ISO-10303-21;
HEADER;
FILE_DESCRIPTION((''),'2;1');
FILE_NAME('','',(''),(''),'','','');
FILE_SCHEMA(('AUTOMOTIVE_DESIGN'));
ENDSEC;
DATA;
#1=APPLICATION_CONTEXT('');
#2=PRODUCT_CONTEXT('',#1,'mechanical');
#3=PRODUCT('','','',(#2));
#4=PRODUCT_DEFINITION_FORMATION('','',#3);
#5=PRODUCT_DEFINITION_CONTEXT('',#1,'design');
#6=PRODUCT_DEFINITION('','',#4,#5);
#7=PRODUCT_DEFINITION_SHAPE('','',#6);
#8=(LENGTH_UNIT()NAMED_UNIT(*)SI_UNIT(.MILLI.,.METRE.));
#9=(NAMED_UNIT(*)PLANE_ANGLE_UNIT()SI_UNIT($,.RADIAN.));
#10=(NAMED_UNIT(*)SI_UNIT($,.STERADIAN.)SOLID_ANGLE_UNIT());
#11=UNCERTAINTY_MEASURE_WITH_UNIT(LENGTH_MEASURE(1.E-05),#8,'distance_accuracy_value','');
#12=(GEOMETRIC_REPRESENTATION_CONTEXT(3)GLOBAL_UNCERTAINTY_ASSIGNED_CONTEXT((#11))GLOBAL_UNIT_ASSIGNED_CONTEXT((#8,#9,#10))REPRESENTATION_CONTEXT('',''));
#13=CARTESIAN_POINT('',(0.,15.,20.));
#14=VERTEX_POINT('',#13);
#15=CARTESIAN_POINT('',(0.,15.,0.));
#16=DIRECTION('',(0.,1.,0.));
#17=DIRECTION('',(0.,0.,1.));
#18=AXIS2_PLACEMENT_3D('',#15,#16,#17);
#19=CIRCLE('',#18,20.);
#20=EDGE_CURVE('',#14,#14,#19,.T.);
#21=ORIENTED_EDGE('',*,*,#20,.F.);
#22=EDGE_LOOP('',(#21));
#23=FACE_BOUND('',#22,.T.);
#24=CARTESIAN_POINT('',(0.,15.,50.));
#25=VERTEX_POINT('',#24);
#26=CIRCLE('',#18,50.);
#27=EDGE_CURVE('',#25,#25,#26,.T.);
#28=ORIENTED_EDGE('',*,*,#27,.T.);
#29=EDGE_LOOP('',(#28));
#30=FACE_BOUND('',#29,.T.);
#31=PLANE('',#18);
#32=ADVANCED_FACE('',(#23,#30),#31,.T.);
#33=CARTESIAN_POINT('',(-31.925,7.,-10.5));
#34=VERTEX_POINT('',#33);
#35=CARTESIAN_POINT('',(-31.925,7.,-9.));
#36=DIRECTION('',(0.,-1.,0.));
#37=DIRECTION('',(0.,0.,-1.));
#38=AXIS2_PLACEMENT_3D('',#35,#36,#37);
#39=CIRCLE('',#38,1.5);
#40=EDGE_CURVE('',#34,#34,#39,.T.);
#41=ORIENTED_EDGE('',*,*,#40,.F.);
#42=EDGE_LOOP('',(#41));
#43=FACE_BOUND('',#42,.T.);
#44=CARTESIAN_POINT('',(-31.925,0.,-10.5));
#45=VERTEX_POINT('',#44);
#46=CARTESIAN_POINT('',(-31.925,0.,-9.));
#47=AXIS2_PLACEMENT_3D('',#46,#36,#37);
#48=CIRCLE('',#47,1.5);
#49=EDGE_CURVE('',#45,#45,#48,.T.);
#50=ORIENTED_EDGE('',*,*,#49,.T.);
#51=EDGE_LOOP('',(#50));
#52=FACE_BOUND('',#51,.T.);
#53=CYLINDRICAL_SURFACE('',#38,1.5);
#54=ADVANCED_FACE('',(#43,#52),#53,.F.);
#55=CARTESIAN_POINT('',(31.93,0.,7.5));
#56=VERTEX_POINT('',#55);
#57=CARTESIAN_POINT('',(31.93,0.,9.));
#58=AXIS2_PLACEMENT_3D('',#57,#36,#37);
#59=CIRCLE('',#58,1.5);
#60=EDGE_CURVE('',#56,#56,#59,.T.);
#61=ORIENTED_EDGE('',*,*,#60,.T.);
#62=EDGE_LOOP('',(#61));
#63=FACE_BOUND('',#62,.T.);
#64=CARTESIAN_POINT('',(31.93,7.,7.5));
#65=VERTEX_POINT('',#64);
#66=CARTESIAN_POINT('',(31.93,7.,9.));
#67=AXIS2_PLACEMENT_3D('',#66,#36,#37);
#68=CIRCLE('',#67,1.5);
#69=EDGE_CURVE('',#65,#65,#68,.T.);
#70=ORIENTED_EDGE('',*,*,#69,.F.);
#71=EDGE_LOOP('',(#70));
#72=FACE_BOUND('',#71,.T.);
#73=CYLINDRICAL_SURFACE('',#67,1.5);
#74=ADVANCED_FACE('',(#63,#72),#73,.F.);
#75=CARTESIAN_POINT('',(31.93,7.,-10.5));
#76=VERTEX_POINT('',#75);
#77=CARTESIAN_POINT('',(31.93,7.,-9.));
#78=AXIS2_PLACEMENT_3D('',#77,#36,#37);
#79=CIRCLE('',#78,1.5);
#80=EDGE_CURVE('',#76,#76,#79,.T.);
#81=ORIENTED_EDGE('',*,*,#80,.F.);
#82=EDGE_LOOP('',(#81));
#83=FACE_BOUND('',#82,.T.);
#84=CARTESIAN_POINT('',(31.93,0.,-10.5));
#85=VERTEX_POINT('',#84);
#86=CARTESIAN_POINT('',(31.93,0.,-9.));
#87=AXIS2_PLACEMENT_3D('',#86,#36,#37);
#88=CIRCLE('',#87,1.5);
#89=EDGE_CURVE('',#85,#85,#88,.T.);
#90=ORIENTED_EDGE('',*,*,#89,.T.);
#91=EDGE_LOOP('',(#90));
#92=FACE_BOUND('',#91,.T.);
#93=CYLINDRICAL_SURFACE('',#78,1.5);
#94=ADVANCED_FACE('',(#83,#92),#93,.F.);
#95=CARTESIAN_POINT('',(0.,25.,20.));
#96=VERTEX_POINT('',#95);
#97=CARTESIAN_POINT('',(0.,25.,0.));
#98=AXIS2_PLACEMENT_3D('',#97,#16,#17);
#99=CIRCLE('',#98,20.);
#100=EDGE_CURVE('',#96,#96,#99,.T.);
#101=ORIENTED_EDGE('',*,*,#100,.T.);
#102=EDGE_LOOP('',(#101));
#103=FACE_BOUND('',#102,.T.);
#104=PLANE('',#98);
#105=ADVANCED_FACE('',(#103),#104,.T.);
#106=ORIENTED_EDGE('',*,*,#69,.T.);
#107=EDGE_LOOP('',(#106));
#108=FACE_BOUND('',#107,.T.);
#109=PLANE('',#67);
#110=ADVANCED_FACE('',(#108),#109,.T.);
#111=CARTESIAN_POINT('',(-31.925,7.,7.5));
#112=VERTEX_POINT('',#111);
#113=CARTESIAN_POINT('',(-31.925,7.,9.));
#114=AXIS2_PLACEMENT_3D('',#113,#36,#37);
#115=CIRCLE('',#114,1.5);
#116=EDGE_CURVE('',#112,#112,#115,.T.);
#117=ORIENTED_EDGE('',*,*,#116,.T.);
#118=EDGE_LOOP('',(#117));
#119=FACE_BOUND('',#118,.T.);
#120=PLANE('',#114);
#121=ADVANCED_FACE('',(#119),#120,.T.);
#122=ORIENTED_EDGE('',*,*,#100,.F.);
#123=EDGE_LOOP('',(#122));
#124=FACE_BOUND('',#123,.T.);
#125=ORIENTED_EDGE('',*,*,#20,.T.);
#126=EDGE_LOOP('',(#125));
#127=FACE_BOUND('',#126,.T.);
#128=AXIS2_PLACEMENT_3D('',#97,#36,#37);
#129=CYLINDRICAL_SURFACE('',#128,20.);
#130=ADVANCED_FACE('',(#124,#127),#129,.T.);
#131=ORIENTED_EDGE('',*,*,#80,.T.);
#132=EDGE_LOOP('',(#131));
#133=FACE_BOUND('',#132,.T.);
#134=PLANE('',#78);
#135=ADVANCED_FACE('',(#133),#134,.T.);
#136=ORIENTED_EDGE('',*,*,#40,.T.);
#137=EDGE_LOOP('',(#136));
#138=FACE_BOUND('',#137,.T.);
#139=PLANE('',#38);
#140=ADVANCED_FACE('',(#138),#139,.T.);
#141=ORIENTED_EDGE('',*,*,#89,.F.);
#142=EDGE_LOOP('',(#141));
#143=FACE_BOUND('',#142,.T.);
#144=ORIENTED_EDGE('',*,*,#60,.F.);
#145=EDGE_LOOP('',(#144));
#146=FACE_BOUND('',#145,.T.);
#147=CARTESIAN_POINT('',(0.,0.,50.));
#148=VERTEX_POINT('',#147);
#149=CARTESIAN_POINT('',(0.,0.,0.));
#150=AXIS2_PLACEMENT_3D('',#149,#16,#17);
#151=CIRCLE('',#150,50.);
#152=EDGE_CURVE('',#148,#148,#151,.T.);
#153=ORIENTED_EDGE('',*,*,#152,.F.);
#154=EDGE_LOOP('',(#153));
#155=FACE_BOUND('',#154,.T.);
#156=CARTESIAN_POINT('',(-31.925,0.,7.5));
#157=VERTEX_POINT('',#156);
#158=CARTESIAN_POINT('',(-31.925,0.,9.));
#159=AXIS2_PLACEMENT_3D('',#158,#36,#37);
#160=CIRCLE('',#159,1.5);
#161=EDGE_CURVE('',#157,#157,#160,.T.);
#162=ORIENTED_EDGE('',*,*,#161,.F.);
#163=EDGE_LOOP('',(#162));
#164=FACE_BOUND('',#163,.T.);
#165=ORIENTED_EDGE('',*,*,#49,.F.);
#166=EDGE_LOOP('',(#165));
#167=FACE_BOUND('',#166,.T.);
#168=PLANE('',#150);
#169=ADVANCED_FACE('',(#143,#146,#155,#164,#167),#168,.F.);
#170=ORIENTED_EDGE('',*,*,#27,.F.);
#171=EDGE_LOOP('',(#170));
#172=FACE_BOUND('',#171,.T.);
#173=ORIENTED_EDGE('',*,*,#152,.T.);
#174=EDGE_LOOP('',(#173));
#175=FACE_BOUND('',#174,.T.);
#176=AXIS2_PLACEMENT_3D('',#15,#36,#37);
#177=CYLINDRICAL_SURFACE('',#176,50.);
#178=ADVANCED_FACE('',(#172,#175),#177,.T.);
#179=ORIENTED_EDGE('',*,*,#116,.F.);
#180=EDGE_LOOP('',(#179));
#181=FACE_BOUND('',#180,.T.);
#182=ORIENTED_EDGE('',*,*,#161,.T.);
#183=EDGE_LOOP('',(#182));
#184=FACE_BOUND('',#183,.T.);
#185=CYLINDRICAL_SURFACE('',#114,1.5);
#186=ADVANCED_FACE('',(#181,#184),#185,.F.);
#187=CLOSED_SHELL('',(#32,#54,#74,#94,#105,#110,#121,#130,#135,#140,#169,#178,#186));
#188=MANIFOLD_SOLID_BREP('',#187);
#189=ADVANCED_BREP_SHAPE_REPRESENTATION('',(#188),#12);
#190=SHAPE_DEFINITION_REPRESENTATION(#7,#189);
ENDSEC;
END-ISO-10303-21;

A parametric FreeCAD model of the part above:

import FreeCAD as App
import Part
import Sketcher
from FreeCAD import Vector

doc = App.newDocument("Part")
body = doc.addObject("PartDesign::Body", "Body")

sketch1 = body.newObject("Sketcher::SketchObject", "Sketch")
sketch1.AttachmentSupport = (doc.getObject("XZ_Plane"), [""])
sketch1.MapMode = "FlatFace"
sketch1.addGeometry(Part.Circle(Vector(0, 0, 0), Vector(0, 0, 1), 50), False)
sketch1.addConstraint(Sketcher.Constraint("Coincident", 0, 3, -1, 1))
sketch1.addConstraint(Sketcher.Constraint("Diameter", 0, 100.0))
pad1 = body.newObject("PartDesign::Pad", "Pad")
pad1.Profile = sketch1
pad1.Length = 15
pad1.Reversed = True

sketch2 = body.newObject("Sketcher::SketchObject", "Sketch001")
sketch2.AttachmentSupport = (doc.getObject("XZ_Plane"), [""])
sketch2.MapMode = "FlatFace"
sketch2.AttachmentOffset = App.Placement(Vector(0, 0, -15), App.Rotation())
sketch2.addGeometry(Part.Circle(Vector(0, 0, 0), Vector(0, 0, 1), 20), False)
sketch2.addConstraint(Sketcher.Constraint("Coincident", 0, 3, -1, 1))
sketch2.addConstraint(Sketcher.Constraint("Diameter", 0, 40.0))
pad2 = body.newObject("PartDesign::Pad", "Pad001")
pad2.Profile = sketch2
pad2.Length = 10
pad2.Reversed = True

sketch3 = body.newObject("Sketcher::SketchObject", "Sketch002")
sketch3.AttachmentSupport = (doc.getObject("XZ_Plane"), [""])
sketch3.MapMode = "FlatFace"
sketch3.addGeometry(Part.Circle(Vector(31.9, 9, 0), Vector(0, 0, 1), 1.5), False)
sketch3.addGeometry(Part.Circle(Vector(31.9, -9, 0), Vector(0, 0, 1), 1.5), False)
sketch3.addGeometry(Part.Circle(Vector(-31.9, 9, 0), Vector(0, 0, 1), 1.5), False)
sketch3.addGeometry(Part.Circle(Vector(-31.9, -9, 0), Vector(0, 0, 1), 1.5), False)
sketch3.addConstraint(Sketcher.Constraint("Equal", 0, 1))
sketch3.addConstraint(Sketcher.Constraint("Equal", 1, 2))
sketch3.addConstraint(Sketcher.Constraint("Equal", 2, 3))
sketch3.addConstraint(Sketcher.Constraint("Symmetric", 0, 3, 1, 3, -1))
sketch3.addConstraint(Sketcher.Constraint("Symmetric", 2, 3, 3, 3, -1))
sketch3.addConstraint(Sketcher.Constraint("Horizontal", 0, 3, 2, 3))
sketch3.addConstraint(Sketcher.Constraint("Diameter", 0, 3.0))
sketch3.addConstraint(Sketcher.Constraint("DistanceY", -1, 1, 0, 3, 9.0))
sketch3.addConstraint(Sketcher.Constraint("DistanceX", -1, 1, 0, 3, 31.93))
sketch3.addConstraint(Sketcher.Constraint("DistanceX", 2, 3, -1, 1, 31.925))
pocket1 = body.newObject("PartDesign::Pocket", "Pocket")
pocket1.Profile = sketch3
pocket1.Length = 7

doc.recompute()
